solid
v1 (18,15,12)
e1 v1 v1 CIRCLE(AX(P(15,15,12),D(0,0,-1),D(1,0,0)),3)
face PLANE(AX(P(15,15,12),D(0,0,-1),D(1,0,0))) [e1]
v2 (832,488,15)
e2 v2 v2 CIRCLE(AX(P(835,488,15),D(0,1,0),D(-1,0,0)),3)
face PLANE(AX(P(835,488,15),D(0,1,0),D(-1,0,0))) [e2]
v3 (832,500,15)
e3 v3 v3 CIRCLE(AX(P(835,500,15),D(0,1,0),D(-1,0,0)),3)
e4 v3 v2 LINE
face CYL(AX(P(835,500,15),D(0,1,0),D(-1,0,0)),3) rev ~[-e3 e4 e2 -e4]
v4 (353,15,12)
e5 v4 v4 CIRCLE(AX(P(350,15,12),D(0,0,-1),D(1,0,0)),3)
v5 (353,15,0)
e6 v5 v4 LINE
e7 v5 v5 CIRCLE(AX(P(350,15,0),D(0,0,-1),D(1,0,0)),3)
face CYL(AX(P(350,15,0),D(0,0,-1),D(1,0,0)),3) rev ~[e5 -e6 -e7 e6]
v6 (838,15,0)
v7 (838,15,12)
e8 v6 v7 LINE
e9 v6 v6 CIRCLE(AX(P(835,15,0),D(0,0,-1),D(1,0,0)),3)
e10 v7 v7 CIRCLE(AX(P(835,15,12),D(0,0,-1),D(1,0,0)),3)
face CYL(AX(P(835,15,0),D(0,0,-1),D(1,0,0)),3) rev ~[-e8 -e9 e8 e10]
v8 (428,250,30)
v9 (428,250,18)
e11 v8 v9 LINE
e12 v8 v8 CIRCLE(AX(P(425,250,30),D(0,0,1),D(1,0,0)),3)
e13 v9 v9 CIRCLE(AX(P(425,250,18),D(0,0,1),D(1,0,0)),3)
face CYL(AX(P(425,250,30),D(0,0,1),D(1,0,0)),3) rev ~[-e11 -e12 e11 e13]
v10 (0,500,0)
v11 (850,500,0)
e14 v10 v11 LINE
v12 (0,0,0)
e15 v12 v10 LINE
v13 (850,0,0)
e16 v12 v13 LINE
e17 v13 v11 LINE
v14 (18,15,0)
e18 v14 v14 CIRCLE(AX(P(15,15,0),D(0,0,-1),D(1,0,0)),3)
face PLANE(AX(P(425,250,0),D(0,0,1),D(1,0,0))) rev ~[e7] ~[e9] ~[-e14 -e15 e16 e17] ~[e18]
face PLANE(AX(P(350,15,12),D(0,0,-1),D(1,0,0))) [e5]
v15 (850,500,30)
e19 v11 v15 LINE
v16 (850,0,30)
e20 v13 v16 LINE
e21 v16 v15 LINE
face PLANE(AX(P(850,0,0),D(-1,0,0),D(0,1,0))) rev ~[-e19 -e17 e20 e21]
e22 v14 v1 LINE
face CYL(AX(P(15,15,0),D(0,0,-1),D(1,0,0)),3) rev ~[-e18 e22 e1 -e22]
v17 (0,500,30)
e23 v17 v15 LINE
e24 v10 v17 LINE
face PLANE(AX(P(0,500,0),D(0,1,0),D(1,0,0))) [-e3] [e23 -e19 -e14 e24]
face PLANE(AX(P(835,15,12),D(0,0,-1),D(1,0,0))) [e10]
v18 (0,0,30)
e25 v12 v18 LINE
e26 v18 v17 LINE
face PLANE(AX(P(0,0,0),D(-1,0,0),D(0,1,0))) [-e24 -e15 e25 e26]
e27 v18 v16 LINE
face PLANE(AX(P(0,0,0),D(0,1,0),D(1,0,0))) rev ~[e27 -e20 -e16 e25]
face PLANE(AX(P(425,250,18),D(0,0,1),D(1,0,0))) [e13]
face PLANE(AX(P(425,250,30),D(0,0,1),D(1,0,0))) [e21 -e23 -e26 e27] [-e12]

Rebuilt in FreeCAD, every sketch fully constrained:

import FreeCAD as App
import Part
import Sketcher
Q = App.Units.Quantity


def add_polygon(sketch, points):
    """Adds a closed chain of lines whose ends are joined by coincident constraints."""
    first, n = sketch.GeometryCount, len(points)
    for a, b in zip(points, points[1:] + points[:1]):
        sketch.addGeometry(Part.LineSegment(App.Vector(*a, 0), App.Vector(*b, 0)), False)
    for i in range(n):
        sketch.addConstraint(Sketcher.Constraint("Coincident", first + i, 2, first + (i + 1) % n, 1))

doc = App.newDocument("Part")
body = doc.addObject("PartDesign::Body", "Body")

# Sketch on XY plane
sketch1 = body.newObject("Sketcher::SketchObject", "Sketch")
sketch1.AttachmentSupport = (doc.getObject("XY_Plane"), [""])
sketch1.MapMode = "FlatFace"
add_polygon(sketch1, [(0, 500), (0, 0), (850, 0), (850, 500)])  # lines 0-3
sketch1.addConstraint(Sketcher.Constraint("Vertical", 0))
sketch1.addConstraint(Sketcher.Constraint("Horizontal", 1))
sketch1.addConstraint(Sketcher.Constraint("Vertical", 2))
sketch1.addConstraint(Sketcher.Constraint("Horizontal", 3))
sketch1.addConstraint(Sketcher.Constraint("Coincident", 0, 2, -1, 1))
sketch1.addConstraint(Sketcher.Constraint("DistanceX", 1, 1, 1, 2, Q("850 mm")))
sketch1.addConstraint(Sketcher.Constraint("DistanceY", 0, 2, 0, 1, Q("500 mm")))
pad1 = body.newObject("PartDesign::Pad", "Pad")
pad1.Profile = sketch1
pad1.Length = 30

# Sketch on XY plane
sketch2 = body.newObject("Sketcher::SketchObject", "Sketch001")
sketch2.AttachmentSupport = (doc.getObject("XY_Plane"), [""])
sketch2.MapMode = "FlatFace"
sketch2.addGeometry(Part.Circle(App.Vector(835, 15, 0), App.Vector(0, 0, 1), 3), False)
sketch2.addConstraint(Sketcher.Constraint("Diameter", 0, Q("6 mm")))
sketch2.addConstraint(Sketcher.Constraint("DistanceX", -1, 1, 0, 3, Q("835 mm")))
sketch2.addConstraint(Sketcher.Constraint("DistanceY", -1, 1, 0, 3, Q("15 mm")))
pocket1 = body.newObject("PartDesign::Pocket", "Pocket")
pocket1.Profile = sketch2
pocket1.Length = 12
pocket1.Reversed = True

# Sketch on XY plane
sketch3 = body.newObject("Sketcher::SketchObject", "Sketch002")
sketch3.AttachmentSupport = (doc.getObject("XY_Plane"), [""])
sketch3.MapMode = "FlatFace"
sketch3.addGeometry(Part.Circle(App.Vector(15, 15, 0), App.Vector(0, 0, 1), 3), False)
sketch3.addConstraint(Sketcher.Constraint("Diameter", 0, Q("6 mm")))
sketch3.addConstraint(Sketcher.Constraint("DistanceX", -1, 1, 0, 3, Q("15 mm")))
sketch3.addConstraint(Sketcher.Constraint("DistanceY", -1, 1, 0, 3, Q("15 mm")))
pocket2 = body.newObject("PartDesign::Pocket", "Pocket001")
pocket2.Profile = sketch3
pocket2.Length = 12
pocket2.Reversed = True

# Sketch on XY plane
sketch4 = body.newObject("Sketcher::SketchObject", "Sketch003")
sketch4.AttachmentSupport = (doc.getObject("XY_Plane"), [""])
sketch4.MapMode = "FlatFace"
sketch4.addGeometry(Part.Circle(App.Vector(350, 15, 0), App.Vector(0, 0, 1), 3), False)
sketch4.addConstraint(Sketcher.Constraint("Diameter", 0, Q("6 mm")))
sketch4.addConstraint(Sketcher.Constraint("DistanceX", -1, 1, 0, 3, Q("350 mm")))
sketch4.addConstraint(Sketcher.Constraint("DistanceY", -1, 1, 0, 3, Q("15 mm")))
pocket3 = body.newObject("PartDesign::Pocket", "Pocket002")
pocket3.Profile = sketch4
pocket3.Length = 12
pocket3.Reversed = True

# Sketch on XY plane
sketch5 = body.newObject("Sketcher::SketchObject", "Sketch004")
sketch5.AttachmentSupport = (doc.getObject("XY_Plane"), [""])
sketch5.MapMode = "FlatFace"
sketch5.AttachmentOffset = App.Placement(App.Vector(0, 0, 30), App.Rotation())
sketch5.addGeometry(Part.Circle(App.Vector(425, 250, 0), App.Vector(0, 0, 1), 3), False)
sketch5.addConstraint(Sketcher.Constraint("Diameter", 0, Q("6 mm")))
sketch5.addConstraint(Sketcher.Constraint("DistanceX", -1, 1, 0, 3, Q("425 mm")))
sketch5.addConstraint(Sketcher.Constraint("DistanceY", -1, 1, 0, 3, Q("250 mm")))
pocket4 = body.newObject("PartDesign::Pocket", "Pocket003")
pocket4.Profile = sketch5
pocket4.Length = 12

# Sketch on XZ plane
sketch6 = body.newObject("Sketcher::SketchObject", "Sketch005")
sketch6.AttachmentSupport = (doc.getObject("XZ_Plane"), [""])
sketch6.MapMode = "FlatFace"
sketch6.AttachmentOffset = App.Placement(App.Vector(0, 0, -500), App.Rotation())
sketch6.addGeometry(Part.Circle(App.Vector(835, 15, 0), App.Vector(0, 0, 1), 3), False)
sketch6.addConstraint(Sketcher.Constraint("Diameter", 0, Q("6 mm")))
sketch6.addConstraint(Sketcher.Constraint("DistanceX", -1, 1, 0, 3, Q("835 mm")))
sketch6.addConstraint(Sketcher.Constraint("DistanceY", -1, 1, 0, 3, Q("15 mm")))
pocket5 = body.newObject("PartDesign::Pocket", "Pocket004")
pocket5.Profile = sketch6
pocket5.Length = 12
pocket5.Reversed = True

doc.recompute()
